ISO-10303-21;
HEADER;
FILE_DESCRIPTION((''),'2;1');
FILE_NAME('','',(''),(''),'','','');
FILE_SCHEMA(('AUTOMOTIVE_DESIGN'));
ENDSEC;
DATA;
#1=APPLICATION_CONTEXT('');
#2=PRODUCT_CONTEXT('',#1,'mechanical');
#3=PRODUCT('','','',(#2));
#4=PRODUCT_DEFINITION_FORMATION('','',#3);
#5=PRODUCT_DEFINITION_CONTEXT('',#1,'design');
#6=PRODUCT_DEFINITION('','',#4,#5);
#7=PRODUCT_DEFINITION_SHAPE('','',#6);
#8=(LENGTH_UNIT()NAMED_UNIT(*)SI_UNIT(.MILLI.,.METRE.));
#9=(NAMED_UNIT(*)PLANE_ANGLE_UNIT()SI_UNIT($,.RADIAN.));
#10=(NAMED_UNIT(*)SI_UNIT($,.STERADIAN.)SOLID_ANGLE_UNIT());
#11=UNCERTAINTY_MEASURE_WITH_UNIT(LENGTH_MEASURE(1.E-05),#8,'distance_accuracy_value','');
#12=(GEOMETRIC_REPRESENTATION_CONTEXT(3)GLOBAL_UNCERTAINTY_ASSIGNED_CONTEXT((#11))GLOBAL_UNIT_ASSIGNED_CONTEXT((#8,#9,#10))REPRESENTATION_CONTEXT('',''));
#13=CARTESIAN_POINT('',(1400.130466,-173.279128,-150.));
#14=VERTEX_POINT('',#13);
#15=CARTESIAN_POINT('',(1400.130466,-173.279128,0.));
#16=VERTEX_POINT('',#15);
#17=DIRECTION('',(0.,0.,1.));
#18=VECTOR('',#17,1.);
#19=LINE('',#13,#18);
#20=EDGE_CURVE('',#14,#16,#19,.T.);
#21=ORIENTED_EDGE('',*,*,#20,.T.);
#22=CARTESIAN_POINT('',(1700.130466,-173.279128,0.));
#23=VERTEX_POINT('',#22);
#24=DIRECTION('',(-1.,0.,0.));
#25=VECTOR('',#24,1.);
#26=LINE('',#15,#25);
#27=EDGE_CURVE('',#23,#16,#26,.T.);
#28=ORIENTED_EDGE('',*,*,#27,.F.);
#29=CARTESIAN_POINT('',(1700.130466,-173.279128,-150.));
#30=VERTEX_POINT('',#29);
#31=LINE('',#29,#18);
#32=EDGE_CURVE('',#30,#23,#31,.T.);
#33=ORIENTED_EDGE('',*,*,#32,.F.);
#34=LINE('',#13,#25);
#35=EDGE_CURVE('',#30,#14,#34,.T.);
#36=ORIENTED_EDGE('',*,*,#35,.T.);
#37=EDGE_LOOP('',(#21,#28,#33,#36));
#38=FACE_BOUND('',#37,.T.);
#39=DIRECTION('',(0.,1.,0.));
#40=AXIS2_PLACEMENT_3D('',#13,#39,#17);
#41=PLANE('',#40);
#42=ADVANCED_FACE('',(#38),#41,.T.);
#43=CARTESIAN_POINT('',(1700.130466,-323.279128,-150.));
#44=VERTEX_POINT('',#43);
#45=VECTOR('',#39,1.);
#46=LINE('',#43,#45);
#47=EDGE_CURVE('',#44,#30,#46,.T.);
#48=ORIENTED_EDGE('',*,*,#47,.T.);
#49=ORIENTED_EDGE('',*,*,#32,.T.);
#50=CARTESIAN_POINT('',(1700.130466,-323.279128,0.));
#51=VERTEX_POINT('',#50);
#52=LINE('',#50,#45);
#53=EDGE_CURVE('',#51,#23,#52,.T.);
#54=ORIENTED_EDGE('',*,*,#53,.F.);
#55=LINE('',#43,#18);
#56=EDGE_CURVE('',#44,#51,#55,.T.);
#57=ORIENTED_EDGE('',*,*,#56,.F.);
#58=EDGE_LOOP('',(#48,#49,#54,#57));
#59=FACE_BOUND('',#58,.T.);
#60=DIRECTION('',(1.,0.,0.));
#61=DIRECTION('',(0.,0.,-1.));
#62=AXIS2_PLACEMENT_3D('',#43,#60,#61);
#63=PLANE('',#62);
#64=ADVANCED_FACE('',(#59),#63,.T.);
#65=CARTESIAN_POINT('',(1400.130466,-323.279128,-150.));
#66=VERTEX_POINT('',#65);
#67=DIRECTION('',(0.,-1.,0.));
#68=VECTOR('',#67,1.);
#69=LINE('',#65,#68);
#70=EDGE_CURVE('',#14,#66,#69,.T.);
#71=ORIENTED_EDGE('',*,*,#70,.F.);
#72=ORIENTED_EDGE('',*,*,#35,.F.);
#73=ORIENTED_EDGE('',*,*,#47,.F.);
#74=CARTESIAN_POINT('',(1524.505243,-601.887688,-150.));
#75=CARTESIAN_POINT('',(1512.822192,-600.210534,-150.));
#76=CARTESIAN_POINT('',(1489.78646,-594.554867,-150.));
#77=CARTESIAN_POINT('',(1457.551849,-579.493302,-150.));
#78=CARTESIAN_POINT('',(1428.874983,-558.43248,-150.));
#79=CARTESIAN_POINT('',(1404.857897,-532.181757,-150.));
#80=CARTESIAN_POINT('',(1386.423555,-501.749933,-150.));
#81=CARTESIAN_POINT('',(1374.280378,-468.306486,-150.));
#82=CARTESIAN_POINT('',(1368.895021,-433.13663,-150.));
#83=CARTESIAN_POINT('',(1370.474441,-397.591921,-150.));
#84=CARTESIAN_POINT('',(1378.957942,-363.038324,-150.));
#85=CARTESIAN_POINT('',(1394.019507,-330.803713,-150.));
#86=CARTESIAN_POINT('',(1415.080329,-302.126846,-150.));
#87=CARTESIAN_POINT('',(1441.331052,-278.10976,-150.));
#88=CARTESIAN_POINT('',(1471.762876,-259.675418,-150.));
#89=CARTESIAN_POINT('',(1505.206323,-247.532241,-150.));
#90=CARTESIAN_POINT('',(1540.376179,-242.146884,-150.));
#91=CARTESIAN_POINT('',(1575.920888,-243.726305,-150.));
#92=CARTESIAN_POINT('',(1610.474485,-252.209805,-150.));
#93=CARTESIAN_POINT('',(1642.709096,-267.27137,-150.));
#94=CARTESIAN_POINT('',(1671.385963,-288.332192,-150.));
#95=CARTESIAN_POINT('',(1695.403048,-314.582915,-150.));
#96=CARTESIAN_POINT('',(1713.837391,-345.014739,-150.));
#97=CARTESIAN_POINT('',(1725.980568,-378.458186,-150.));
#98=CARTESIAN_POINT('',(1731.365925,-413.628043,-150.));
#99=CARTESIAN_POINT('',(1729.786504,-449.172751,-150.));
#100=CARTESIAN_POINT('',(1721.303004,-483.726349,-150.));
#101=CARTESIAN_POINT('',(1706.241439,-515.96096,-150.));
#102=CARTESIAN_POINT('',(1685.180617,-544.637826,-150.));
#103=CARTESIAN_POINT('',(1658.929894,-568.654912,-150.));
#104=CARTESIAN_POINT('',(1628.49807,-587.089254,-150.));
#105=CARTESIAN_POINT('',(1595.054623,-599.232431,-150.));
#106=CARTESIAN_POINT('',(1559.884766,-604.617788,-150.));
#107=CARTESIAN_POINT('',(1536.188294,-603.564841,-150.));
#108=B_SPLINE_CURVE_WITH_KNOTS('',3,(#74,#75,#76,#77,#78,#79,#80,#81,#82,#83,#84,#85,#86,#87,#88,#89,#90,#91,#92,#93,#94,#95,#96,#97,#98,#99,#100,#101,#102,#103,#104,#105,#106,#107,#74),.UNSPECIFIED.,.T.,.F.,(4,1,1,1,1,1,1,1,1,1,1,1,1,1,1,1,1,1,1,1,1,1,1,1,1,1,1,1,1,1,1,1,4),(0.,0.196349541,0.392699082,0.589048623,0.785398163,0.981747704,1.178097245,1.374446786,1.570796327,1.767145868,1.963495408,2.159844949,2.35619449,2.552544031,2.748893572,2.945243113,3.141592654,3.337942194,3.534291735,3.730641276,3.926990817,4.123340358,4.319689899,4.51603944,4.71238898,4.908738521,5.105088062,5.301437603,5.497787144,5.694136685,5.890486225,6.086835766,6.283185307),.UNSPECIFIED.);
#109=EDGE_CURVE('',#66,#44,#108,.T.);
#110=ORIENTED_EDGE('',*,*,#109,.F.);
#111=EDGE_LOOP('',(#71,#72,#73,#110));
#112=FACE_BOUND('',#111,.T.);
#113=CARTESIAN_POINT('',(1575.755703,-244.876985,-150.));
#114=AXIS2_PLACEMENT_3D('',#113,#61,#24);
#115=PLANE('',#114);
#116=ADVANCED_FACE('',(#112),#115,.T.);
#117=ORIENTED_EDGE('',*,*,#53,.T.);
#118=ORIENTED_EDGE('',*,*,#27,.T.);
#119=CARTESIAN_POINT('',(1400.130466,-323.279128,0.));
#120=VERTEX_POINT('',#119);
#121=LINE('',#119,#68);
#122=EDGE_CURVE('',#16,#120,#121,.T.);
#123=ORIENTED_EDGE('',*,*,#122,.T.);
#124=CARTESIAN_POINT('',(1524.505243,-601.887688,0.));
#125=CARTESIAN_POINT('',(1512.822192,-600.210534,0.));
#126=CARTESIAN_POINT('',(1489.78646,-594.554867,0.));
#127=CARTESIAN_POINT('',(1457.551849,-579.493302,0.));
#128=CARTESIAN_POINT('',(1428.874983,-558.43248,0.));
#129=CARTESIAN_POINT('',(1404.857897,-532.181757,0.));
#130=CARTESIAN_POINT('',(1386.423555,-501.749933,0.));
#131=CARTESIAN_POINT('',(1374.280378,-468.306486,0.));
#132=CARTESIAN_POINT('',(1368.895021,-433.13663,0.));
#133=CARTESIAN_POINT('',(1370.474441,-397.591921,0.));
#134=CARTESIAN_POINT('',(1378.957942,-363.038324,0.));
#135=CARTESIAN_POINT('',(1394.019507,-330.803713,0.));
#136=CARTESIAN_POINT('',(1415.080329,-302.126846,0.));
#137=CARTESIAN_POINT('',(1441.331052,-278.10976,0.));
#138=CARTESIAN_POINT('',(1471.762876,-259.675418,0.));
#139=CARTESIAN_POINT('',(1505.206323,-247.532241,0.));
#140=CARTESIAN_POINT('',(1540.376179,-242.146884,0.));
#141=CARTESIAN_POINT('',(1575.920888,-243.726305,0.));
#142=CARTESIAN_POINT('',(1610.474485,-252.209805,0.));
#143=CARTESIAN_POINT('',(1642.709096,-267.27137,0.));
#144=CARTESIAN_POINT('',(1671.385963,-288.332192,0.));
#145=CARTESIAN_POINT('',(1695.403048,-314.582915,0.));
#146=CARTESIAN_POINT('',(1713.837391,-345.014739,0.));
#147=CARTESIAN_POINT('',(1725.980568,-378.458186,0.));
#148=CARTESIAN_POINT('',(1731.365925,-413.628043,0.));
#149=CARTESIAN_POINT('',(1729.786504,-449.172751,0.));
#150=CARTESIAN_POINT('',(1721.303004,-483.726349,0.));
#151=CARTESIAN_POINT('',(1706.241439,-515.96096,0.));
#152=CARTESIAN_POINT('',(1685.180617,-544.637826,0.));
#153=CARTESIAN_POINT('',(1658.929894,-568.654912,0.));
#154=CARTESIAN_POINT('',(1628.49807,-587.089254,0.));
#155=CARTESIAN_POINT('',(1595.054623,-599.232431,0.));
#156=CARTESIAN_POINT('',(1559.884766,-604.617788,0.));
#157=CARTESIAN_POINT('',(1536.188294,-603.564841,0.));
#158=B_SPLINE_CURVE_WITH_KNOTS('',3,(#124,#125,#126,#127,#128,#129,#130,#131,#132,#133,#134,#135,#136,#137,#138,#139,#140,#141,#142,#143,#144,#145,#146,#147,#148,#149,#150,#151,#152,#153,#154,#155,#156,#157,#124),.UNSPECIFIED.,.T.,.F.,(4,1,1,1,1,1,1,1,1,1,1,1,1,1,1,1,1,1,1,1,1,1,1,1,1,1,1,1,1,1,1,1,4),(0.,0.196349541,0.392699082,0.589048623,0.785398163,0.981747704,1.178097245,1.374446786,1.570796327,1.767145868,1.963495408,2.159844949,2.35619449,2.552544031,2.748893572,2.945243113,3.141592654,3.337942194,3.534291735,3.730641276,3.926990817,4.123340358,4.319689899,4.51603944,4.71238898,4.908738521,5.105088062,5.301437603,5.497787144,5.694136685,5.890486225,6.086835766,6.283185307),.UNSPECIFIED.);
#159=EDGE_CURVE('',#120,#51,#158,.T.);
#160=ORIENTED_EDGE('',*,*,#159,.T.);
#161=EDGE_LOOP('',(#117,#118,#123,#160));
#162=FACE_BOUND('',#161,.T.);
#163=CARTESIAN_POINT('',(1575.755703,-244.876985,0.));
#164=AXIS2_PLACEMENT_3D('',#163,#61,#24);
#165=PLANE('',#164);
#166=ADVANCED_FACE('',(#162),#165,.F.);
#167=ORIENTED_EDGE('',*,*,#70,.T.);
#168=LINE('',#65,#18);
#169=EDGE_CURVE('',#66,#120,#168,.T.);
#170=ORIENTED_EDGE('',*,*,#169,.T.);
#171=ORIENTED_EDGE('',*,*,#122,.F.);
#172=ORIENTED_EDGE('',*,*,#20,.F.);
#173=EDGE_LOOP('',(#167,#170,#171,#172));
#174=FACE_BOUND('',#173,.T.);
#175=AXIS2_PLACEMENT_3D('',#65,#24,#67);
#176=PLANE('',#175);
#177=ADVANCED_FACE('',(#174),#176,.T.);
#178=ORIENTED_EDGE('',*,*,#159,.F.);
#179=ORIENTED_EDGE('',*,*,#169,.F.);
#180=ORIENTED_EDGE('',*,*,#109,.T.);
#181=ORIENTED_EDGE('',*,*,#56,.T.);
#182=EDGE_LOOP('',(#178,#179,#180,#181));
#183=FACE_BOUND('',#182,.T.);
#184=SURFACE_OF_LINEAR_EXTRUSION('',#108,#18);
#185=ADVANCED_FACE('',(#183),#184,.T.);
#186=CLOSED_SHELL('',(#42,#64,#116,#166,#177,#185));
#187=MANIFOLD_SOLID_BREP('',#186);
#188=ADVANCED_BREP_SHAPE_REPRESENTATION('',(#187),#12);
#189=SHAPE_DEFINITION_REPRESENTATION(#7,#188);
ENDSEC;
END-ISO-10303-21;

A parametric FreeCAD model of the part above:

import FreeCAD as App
import Part
import Sketcher

V = App.Vector

doc = App.newDocument("Part")
params = doc.addObject("Spreadsheet::Sheet", "Params")
for row, (alias, value) in enumerate([
    ("sketch1_height", "150 mm"),
    ("pad1_length", "150 mm"),
], start=1):
    params.set(f"A{row}", alias)
    params.set(f"B{row}", "=" + value)
    params.setAlias(f"B{row}", alias)

body = doc.addObject("PartDesign::Body", "Body")

# Sketch on XY plane
sketch1 = doc.addObject("Sketcher::SketchObject", "Sketch")
body.addObject(sketch1)
sketch1.AttachmentSupport = (doc.XY_Plane, [""])
sketch1.MapMode = "FlatFace"
sketch1.addGeometry(Part.LineSegment(V(1400.130466, -173.279128, 0), V(1400.130466, -323.279128, 0)), False)
sketch1.addGeometry(Part.BSplineCurve([V(1700.130466, -323.279128, 0), V(1698.317439, -320.562057, 0), V(1689.61291, -308.254283, 0), V(1671.385963, -288.332192, 0), V(1642.709096, -267.27137, 0), V(1610.474485, -252.209805, 0), V(1575.920888, -243.726305, 0), V(1540.376179, -242.146884, 0), V(1505.206323, -247.532241, 0), V(1471.762876, -259.675418, 0), V(1441.331052, -278.10976, 0), V(1417.451149, -299.957756, 0), V(1404.907474, -316.121897, 0), V(1400.130466, -323.279128, 0)], [4, 1, 1, 1, 1, 1, 1, 1, 1, 1, 1, 4], [2.301855219, 2.35619449, 2.552544031, 2.748893572, 2.945243113, 3.141592654, 3.337942194, 3.534291735, 3.730641276, 3.926990817, 4.123340358, 4.266490277], False, 3, [1, 1, 1, 1, 1, 1, 1, 1, 1, 1, 1, 1, 1, 1], False), False)
sketch1.addGeometry(Part.LineSegment(V(1700.130466, -323.279128, 0), V(1700.130466, -173.279128, 0)), False)
sketch1.addGeometry(Part.LineSegment(V(1700.130466, -173.279128, 0), V(1400.130466, -173.279128, 0)), False)
sketch1.addConstraint(Sketcher.Constraint("Block", 1))
sketch1.addConstraint(Sketcher.Constraint("Coincident", 0, 2, 1, 2))
sketch1.addConstraint(Sketcher.Constraint("Coincident", 1, 1, 2, 1))
sketch1.addConstraint(Sketcher.Constraint("Coincident", 2, 2, 3, 1))
sketch1.addConstraint(Sketcher.Constraint("Coincident", 3, 2, 0, 1))
sketch1.addConstraint(Sketcher.Constraint("Vertical", 0))
sketch1.addConstraint(Sketcher.Constraint("Vertical", 2))
sketch1.addConstraint(Sketcher.Constraint("Horizontal", 3))
sketch1.addConstraint(Sketcher.Constraint("DistanceY", 0, 2, 0, 1, 150.0))
sketch1.setExpression("Constraints[8]", "Params.sketch1_height")
pad1 = doc.addObject("PartDesign::Pad", "Pad")
body.addObject(pad1)
pad1.Profile = sketch1
pad1.setExpression("Length", "Params.pad1_length")
pad1.Reversed = True

doc.recompute()
